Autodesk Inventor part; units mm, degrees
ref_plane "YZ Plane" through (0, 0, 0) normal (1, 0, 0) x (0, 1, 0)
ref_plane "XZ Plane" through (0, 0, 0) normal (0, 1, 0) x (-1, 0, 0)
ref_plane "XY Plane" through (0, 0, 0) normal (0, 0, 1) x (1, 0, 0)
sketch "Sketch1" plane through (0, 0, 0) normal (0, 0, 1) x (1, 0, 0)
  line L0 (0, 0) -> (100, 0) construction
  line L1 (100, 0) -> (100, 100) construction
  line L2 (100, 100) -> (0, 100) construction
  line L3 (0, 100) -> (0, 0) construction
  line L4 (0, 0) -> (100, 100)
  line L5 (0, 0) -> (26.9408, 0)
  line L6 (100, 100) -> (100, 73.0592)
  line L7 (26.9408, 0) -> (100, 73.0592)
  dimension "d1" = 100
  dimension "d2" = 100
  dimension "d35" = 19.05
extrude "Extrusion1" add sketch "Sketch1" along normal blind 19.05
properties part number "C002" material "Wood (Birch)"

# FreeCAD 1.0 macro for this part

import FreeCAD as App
import Part
import Sketcher

V = App.Vector
Q = App.Units.Quantity

doc = App.newDocument("Part")
body = doc.addObject("PartDesign::Body", "Body")

# Sketch on XY plane
sketch1 = doc.addObject("Sketcher::SketchObject", "Sketch")
body.addObject(sketch1)
sketch1.AttachmentSupport = (doc.XY_Plane, [""])
sketch1.MapMode = "FlatFace"
sketch1.addGeometry(Part.LineSegment(V(100, 100, 0), V(0, 0, 0)), False)
sketch1.addGeometry(Part.LineSegment(V(0, 0, 0), V(27, 0, 0)), False)
sketch1.addGeometry(Part.LineSegment(V(27, 0, 0), V(100, 73, 0)), False)
sketch1.addGeometry(Part.LineSegment(V(100, 73, 0), V(100, 100, 0)), False)
sketch1.addConstraint(Sketcher.Constraint("Coincident", 0, 2, 1, 1))
sketch1.addConstraint(Sketcher.Constraint("Coincident", 1, 2, 2, 1))
sketch1.addConstraint(Sketcher.Constraint("Coincident", 2, 2, 3, 1))
sketch1.addConstraint(Sketcher.Constraint("Coincident", 3, 2, 0, 1))
sketch1.addConstraint(Sketcher.Constraint("Horizontal", 1))
sketch1.addConstraint(Sketcher.Constraint("Vertical", 3))
sketch1.addConstraint(Sketcher.Constraint("Coincident", 0, 2, -1, 1))
sketch1.addConstraint(Sketcher.Constraint("Parallel", 0, 2))
sketch1.addConstraint(Sketcher.Constraint("Equal", 1, 3))
sketch1.addConstraint(Sketcher.Constraint("DistanceX", -1, 1, 2, 2, Q("3.937 in")))
sketch1.addConstraint(Sketcher.Constraint("DistanceX", 1, 1, 1, 2, 26.9408))
pad1 = doc.addObject("PartDesign::Pad", "Pad")
body.addObject(pad1)
pad1.Profile = sketch1
pad1.Length = Q("0.75 in")

doc.recompute()
